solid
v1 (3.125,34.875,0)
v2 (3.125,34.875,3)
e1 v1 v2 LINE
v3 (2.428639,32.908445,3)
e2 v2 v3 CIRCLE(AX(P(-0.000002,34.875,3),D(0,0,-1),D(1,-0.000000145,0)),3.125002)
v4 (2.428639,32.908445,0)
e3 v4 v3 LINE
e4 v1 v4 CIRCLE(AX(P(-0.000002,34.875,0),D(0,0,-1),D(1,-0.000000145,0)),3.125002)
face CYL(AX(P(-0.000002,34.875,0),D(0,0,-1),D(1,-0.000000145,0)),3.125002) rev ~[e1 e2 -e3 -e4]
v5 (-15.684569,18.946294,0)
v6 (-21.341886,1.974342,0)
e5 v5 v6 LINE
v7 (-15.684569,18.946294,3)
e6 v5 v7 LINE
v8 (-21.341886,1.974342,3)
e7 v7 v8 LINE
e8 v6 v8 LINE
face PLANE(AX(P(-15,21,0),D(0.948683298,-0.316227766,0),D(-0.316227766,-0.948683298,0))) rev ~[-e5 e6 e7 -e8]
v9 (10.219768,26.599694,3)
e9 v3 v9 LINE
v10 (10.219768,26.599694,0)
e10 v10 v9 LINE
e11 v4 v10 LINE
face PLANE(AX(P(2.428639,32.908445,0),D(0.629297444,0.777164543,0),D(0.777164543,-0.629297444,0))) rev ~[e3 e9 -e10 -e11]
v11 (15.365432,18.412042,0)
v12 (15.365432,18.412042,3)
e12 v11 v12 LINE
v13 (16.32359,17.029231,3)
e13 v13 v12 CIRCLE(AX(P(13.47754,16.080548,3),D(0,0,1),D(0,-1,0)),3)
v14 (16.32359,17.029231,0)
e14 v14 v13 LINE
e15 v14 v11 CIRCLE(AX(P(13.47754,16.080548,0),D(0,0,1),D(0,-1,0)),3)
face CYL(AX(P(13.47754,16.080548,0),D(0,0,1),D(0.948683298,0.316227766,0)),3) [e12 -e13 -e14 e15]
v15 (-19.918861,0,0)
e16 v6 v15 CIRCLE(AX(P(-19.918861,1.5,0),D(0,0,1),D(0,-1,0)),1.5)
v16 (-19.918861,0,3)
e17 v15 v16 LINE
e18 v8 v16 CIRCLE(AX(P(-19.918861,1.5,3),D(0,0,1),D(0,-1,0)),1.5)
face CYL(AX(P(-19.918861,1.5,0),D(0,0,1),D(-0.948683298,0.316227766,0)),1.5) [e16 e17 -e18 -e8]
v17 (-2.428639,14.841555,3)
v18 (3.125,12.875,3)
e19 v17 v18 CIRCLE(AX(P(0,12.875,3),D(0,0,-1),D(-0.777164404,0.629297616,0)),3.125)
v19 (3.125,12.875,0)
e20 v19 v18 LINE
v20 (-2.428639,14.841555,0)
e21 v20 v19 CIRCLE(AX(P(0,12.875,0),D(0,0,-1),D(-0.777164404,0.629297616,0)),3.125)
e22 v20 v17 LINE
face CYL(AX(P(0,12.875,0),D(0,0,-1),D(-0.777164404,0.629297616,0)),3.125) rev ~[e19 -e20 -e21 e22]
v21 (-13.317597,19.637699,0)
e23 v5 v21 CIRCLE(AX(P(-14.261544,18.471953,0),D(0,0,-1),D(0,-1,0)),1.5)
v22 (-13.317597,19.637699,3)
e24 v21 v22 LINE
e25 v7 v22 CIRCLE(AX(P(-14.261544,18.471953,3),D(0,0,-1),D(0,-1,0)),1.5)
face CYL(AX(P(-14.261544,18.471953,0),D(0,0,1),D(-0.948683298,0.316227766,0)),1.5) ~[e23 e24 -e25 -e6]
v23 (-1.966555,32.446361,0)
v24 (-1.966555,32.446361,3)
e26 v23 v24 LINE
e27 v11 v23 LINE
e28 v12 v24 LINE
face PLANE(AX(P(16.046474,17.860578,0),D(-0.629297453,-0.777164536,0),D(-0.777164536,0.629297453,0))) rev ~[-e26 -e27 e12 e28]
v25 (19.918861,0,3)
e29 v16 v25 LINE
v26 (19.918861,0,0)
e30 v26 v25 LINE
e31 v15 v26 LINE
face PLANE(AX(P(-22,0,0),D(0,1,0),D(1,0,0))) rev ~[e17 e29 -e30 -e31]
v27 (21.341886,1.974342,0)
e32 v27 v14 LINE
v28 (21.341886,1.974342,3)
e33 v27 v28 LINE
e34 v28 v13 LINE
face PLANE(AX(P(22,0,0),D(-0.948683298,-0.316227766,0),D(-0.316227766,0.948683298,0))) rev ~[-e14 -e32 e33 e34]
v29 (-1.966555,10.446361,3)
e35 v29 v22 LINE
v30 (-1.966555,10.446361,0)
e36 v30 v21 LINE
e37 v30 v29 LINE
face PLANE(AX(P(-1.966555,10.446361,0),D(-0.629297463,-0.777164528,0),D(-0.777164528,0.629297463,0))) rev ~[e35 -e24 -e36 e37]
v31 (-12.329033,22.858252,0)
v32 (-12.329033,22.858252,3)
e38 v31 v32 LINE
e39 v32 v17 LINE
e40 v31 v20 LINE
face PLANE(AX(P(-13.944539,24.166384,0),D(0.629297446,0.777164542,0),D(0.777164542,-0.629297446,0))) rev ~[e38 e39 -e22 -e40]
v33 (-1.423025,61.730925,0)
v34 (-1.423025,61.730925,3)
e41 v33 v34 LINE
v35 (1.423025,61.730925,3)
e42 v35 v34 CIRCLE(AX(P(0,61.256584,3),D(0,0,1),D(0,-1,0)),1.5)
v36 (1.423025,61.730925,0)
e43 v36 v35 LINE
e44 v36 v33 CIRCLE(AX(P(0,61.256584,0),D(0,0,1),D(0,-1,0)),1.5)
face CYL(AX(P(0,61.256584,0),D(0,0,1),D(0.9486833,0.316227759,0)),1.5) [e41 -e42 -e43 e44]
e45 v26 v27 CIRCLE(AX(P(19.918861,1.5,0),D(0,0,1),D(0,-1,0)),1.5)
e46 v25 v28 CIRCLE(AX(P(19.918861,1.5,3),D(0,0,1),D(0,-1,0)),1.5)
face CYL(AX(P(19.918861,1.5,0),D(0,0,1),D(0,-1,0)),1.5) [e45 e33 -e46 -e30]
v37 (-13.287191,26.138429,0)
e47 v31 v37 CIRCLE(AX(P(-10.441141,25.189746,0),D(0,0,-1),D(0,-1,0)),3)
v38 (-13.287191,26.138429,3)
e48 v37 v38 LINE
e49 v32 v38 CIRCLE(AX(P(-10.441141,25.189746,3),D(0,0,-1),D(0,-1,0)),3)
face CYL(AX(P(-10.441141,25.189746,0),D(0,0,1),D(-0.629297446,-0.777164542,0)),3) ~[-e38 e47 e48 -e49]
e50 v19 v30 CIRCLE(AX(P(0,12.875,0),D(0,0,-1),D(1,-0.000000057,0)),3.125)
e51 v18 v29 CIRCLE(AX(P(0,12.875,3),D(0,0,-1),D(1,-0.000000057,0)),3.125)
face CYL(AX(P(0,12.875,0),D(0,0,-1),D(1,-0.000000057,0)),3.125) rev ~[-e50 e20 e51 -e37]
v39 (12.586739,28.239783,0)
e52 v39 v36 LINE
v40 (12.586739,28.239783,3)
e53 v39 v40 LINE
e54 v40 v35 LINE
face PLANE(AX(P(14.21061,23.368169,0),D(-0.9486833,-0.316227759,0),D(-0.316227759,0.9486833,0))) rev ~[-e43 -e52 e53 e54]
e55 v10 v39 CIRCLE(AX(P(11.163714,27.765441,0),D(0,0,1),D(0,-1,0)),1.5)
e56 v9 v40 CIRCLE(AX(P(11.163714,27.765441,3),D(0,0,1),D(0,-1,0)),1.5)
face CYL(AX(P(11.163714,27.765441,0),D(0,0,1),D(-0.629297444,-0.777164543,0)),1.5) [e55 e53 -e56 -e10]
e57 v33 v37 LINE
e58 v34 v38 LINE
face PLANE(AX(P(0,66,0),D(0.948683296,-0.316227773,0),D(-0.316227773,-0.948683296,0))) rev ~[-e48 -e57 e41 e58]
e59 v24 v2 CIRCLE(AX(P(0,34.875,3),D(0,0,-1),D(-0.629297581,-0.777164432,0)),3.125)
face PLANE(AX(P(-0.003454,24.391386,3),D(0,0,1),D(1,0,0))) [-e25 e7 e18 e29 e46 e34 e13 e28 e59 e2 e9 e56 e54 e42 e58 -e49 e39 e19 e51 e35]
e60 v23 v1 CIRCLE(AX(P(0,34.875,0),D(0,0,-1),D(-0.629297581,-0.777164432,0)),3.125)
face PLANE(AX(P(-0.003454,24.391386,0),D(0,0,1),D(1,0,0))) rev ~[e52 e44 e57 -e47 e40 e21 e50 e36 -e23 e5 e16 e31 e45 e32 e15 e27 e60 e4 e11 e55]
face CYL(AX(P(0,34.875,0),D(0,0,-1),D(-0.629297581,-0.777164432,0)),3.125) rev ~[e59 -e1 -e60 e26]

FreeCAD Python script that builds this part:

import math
import FreeCAD as App
import Part
import Sketcher

V = App.Vector
Q = App.Units.Quantity


def edges_at(feature, points):
    """Names of the edges that pass closest to the given points."""
    edges = feature.Shape.Edges
    near = lambda p: min(range(len(edges)), key=lambda i: edges[i].distToShape(Part.Vertex(*p))[0])
    return sorted({f"Edge{near(p) + 1}" for p in points})

doc = App.newDocument("Part")
body = doc.addObject("PartDesign::Body", "Body")

# Sketch on XY plane
sketch1 = doc.addObject("Sketcher::SketchObject", "Sketch")
body.addObject(sketch1)
sketch1.AttachmentSupport = (doc.XY_Plane, [""])
sketch1.MapMode = "FlatFace"
sketch1.addGeometry([
    Part.LineSegment(V(-15, 21, 0), V(-22, 0, 0)),  # 0
    Part.LineSegment(V(-22, 0, 0), V(22, 0, 0)),  # 1
    Part.LineSegment(V(22, 0, 0), V(16, 17.9, 0)),  # 2
    Part.LineSegment(V(16, 17.9, 0), V(-2, 32.4, 0)),  # 3
    Part.ArcOfCircle(Part.Circle(V(0, 34.9, 0), V(0, 0, 1), 3.1), math.radians(0), math.radians(231)),  # 4
    Part.ArcOfCircle(Part.Circle(V(0, 34.9, 0), V(0, 0, 1), 3.1), math.radians(-39), math.radians(0)),  # 5
    Part.LineSegment(V(2.4, 32.9, 0), V(14.2, 23.4, 0)),  # 6
    Part.LineSegment(V(14.2, 23.4, 0), V(0, 66, 0)),  # 7
    Part.LineSegment(V(0, 66, 0), V(-13.9, 24.2, 0)),  # 8
    Part.LineSegment(V(-13.9, 24.2, 0), V(-2.4, 14.8, 0)),  # 9
    Part.ArcOfCircle(Part.Circle(V(0, 12.9, 0), V(0, 0, 1), 3.1), math.radians(0), math.radians(141)),  # 10
    Part.ArcOfCircle(Part.Circle(V(0, 12.9, 0), V(0, 0, 1), 3.1), math.radians(-129), math.radians(0)),  # 11
    Part.LineSegment(V(-2, 10.4, 0), V(-15, 21, 0)),  # 12
], False)
sketch1.addConstraint([
    Sketcher.Constraint("Coincident", 0, 2, 1, 1),
    Sketcher.Constraint("Coincident", 1, 2, 2, 1),
    Sketcher.Constraint("Coincident", 2, 2, 3, 1),
    Sketcher.Constraint("Tangent", 3, 2, 4, 2),
    Sketcher.Constraint("Tangent", 4, 1, 5, 2),
    Sketcher.Constraint("Coincident", 5, 1, 6, 1),
    Sketcher.Constraint("Coincident", 6, 2, 7, 1),
    Sketcher.Constraint("Coincident", 7, 2, 8, 1),
    Sketcher.Constraint("Coincident", 8, 2, 9, 1),
    Sketcher.Constraint("Coincident", 9, 2, 10, 2),
    Sketcher.Constraint("Tangent", 10, 1, 11, 2),
    Sketcher.Constraint("Tangent", 11, 1, 12, 1),
    Sketcher.Constraint("Coincident", 12, 2, 0, 1),
    Sketcher.Constraint("Horizontal", 1),
    Sketcher.Constraint("Equal", 4, 5),
    Sketcher.Constraint("Equal", 5, 10),
    Sketcher.Constraint("Equal", 10, 11),
    Sketcher.Constraint("Symmetric", 0, 2, 1, 2, -1, 1),
    Sketcher.Constraint("PointOnObject", 4, 3, -2),
    Sketcher.Constraint("PointOnObject", 10, 3, -2),
    Sketcher.Constraint("PointOnObject", 7, 2, -2),
    Sketcher.Constraint("Parallel", 3, 6),
    Sketcher.Constraint("Parallel", 2, 7),
    Sketcher.Constraint("Parallel", 0, 8),
    Sketcher.Constraint("Parallel", 6, 9),
    Sketcher.Constraint("Parallel", 9, 12),
    Sketcher.Constraint("Horizontal", 5, 3, 4, 1),
    Sketcher.Constraint("Horizontal", 11, 3, 10, 1),
    Sketcher.Constraint("DistanceX", 1, 1, 1, 2, Q("44 mm")),
    Sketcher.Constraint("DistanceY", -1, 1, 7, 2, Q("66 mm")),
    Sketcher.Constraint("DistanceX", 12, 2, -1, 1, Q("15 mm")),
    Sketcher.Constraint("DistanceY", -1, 1, 12, 2, Q("21 mm")),
    Sketcher.Constraint("Radius", 4, Q("3.125 mm")),
    Sketcher.Constraint("DistanceY", 10, 3, 4, 3, Q("22 mm")),
    Sketcher.Constraint("DistanceY", -1, 1, 4, 3, Q("34.875 mm")),
    Sketcher.Constraint("Distance", 6, Q("15.160201 mm")),
    Sketcher.Constraint("DistanceX", 8, 2, 9, 2, Q("11.5159 mm")),
    Sketcher.Constraint("DistanceY", -1, 1, 2, 2, Q("17.860578 mm")),
])
pad1 = doc.addObject("PartDesign::Pad", "Pad")
body.addObject(pad1)
pad1.Profile = sketch1
pad1.Length = 3
doc.recompute()

fillet = doc.addObject("PartDesign::Fillet", "Fillet")
body.addObject(fillet)
fillet.Base = (pad1, edges_at(pad1, [
    (-22, 0, 1.5),
    (22, 0, 1.5),
    (14.211, 23.368, 1.5),
    (0, 66, 1.5),
    (-15, 21, 1.5),
]))
fillet.Radius = 1.5
doc.recompute()

fillet2 = doc.addObject("PartDesign::Fillet", "Fillet001")
body.addObject(fillet2)
fillet2.Base = (fillet, edges_at(fillet, [(-13.945, 24.166, 1.5), (16.046, 17.861, 1.5)]))
fillet2.Radius = 3

doc.recompute()
